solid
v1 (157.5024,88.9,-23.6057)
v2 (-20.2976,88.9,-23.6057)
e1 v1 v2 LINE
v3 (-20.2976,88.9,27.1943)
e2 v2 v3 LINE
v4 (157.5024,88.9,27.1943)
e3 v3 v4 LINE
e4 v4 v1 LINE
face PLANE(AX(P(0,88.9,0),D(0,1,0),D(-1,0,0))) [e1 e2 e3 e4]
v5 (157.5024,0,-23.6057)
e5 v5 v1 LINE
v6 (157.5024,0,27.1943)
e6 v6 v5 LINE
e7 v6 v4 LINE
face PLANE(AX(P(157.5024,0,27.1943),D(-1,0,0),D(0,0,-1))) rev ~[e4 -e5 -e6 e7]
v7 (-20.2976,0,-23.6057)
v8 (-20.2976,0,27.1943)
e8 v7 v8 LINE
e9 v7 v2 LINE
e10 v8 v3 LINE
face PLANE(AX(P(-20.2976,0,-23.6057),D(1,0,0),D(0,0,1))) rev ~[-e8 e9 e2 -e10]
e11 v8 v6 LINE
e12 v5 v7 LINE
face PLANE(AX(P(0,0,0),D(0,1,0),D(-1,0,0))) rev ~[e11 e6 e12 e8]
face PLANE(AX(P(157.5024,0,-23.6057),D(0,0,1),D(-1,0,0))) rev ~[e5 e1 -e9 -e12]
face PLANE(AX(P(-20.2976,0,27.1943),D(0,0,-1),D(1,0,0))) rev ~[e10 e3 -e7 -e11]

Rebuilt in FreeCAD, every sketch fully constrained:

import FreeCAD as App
import Part
import Sketcher
Q = App.Units.Quantity

doc = App.newDocument("Part")
params = doc.addObject("Spreadsheet::Sheet", "Params")
for row, (alias, value) in enumerate([
    ("sketch1_width", "7 in"),
    ("sketch1_height", "2 in"),
    ("pad1_length", "3.5 in"),
], start=1):
    params.set(f"A{row}", alias)
    params.set(f"B{row}", "=" + value)
    params.setAlias(f"B{row}", alias)

body = doc.addObject("PartDesign::Body", "Body")

sketch1 = body.newObject("Sketcher::SketchObject", "Sketch")
sketch1.AttachmentSupport = (doc.getObject("XZ_Plane"), [""])
sketch1.MapMode = "FlatFace"
sketch1.addGeometry(Part.LineSegment(App.Vector(-20, -24, 0), App.Vector(-20, 27, 0)), False)
sketch1.addGeometry(Part.LineSegment(App.Vector(-20, 27, 0), App.Vector(158, 27, 0)), False)
sketch1.addGeometry(Part.LineSegment(App.Vector(158, 27, 0), App.Vector(158, -24, 0)), False)
sketch1.addGeometry(Part.LineSegment(App.Vector(158, -24, 0), App.Vector(-20, -24, 0)), False)
sketch1.addConstraint(Sketcher.Constraint("Coincident", 0, 2, 1, 1))
sketch1.addConstraint(Sketcher.Constraint("Coincident", 1, 2, 2, 1))
sketch1.addConstraint(Sketcher.Constraint("Coincident", 2, 2, 3, 1))
sketch1.addConstraint(Sketcher.Constraint("Coincident", 3, 2, 0, 1))
sketch1.addConstraint(Sketcher.Constraint("Vertical", 0))
sketch1.addConstraint(Sketcher.Constraint("Horizontal", 1))
sketch1.addConstraint(Sketcher.Constraint("Vertical", 2))
sketch1.addConstraint(Sketcher.Constraint("Horizontal", 3))
sketch1.addConstraint(Sketcher.Constraint("DistanceX", 1, 1, 1, 2, Q("7 in")))
sketch1.addConstraint(Sketcher.Constraint("DistanceY", 0, 1, 0, 2, Q("2 in")))
sketch1.addConstraint(Sketcher.Constraint("DistanceX", 0, 2, -1, 1, Q("20.2976 mm")))
sketch1.addConstraint(Sketcher.Constraint("DistanceY", -1, 1, 0, 2, Q("27.1943 mm")))
sketch1.setExpression("Constraints[8]", "Params.sketch1_width")
sketch1.setExpression("Constraints[9]", "Params.sketch1_height")
pad1 = body.newObject("PartDesign::Pad", "Pad")
pad1.Profile = sketch1
pad1.setExpression("Length", "Params.pad1_length")
pad1.Reversed = True

doc.recompute()
